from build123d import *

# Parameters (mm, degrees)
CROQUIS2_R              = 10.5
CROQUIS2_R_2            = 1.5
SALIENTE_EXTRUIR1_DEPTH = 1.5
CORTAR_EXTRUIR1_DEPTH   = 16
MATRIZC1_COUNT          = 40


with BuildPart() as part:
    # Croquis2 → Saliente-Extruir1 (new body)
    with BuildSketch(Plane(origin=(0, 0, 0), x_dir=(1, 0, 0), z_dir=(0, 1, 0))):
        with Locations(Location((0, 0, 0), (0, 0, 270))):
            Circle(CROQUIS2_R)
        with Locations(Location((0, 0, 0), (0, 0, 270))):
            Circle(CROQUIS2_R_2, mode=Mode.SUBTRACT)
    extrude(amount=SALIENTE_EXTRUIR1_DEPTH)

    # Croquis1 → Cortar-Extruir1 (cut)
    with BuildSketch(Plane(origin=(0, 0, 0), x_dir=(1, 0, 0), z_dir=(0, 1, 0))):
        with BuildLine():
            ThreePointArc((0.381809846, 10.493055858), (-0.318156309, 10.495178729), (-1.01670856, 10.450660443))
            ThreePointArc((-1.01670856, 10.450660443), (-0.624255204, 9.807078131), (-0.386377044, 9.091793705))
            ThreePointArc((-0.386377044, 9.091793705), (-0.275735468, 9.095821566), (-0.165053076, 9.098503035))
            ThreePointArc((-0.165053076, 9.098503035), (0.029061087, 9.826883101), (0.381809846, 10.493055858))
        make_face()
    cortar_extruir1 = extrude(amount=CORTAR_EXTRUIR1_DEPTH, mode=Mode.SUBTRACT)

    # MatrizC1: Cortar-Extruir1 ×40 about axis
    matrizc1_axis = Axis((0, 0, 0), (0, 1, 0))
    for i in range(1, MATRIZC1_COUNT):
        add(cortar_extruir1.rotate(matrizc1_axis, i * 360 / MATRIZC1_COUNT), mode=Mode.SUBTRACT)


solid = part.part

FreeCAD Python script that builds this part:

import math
import FreeCAD as App
import Part
import Sketcher
Q = App.Units.Quantity

doc = App.newDocument("Part")
params = doc.addObject("Spreadsheet::Sheet", "Params")
for row, (alias, value) in enumerate([
    ("sketch1_diameter", "21 mm"),
    ("sketch1_diameter2", "3 mm"),
    ("pad1_length", "1.5 mm"),
    ("sketch2_radius", "10.5 mm"),
    ("pocket1_length", "16 mm"),
], start=1):
    params.set(f"A{row}", alias)
    params.set(f"B{row}", "=" + value)
    params.setAlias(f"B{row}", alias)

body = doc.addObject("PartDesign::Body", "Body")

# Sketch on XZ plane
sketch1 = body.newObject("Sketcher::SketchObject", "Sketch")
sketch1.AttachmentSupport = (doc.getObject("XZ_Plane"), [""])
sketch1.MapMode = "FlatFace"
sketch1.addGeometry([
    Part.Circle(App.Vector(0, 0, 0), App.Vector(0, 0, 1), 10.5),
    Part.Circle(App.Vector(0, 0, 0), App.Vector(0, 0, 1), 1.5),
], False)
sketch1.addConstraint([
    Sketcher.Constraint("Coincident", 0, 3, -1, 1),
    Sketcher.Constraint("Coincident", 1, 3, -1, 1),
    Sketcher.Constraint("Diameter", 0, Q("21 mm")),
    Sketcher.Constraint("Diameter", 1, Q("3 mm")),
])
sketch1.setExpression("Constraints[2]", "Params.sketch1_diameter")
sketch1.setExpression("Constraints[3]", "Params.sketch1_diameter2")
pad1 = body.newObject("PartDesign::Pad", "Pad")
pad1.Profile = sketch1
pad1.setExpression("Length", "Params.pad1_length")
pad1.Reversed = True

# Sketch on XZ plane
sketch2 = body.newObject("Sketcher::SketchObject", "Sketch001")
sketch2.AttachmentSupport = (doc.getObject("XZ_Plane"), [""])
sketch2.MapMode = "FlatFace"
sketch2.addGeometry([
    Part.ArcOfCircle(Part.Circle(App.Vector(0, 0, 0), App.Vector(0, 0, 1), 10.5), math.radians(-95.556621), math.radians(-87.916103)),
    Part.ArcOfCircle(Part.Circle(App.Vector(-3.64934, -8.403845, 0), App.Vector(0, 0, 1), 3.334696), math.radians(-37.864307), math.radians(-11.905618)),
    Part.ArcOfCircle(Part.Circle(App.Vector(0, -0.00001, 0), App.Vector(0, 0, 1), 9.09999), math.radians(-92.433455), math.radians(-91.03927)),
    Part.ArcOfCircle(Part.Circle(App.Vector(3.13359, -8.609467, 0), App.Vector(0, 0, 1), 3.334696), math.radians(-171.567107), math.radians(-145.608417)),
], False)
sketch2.addConstraint([
    Sketcher.Constraint("Coincident", 0, 1, 1, 1),
    Sketcher.Constraint("Coincident", 1, 2, 2, 1),
    Sketcher.Constraint("Coincident", 2, 2, 3, 1),
    Sketcher.Constraint("Coincident", 3, 2, 0, 2),
    Sketcher.Constraint("Coincident", 0, 3, -1, 1),
    Sketcher.Constraint("Equal", 1, 3),
    Sketcher.Constraint("PointOnObject", 2, 3, -2),
    Sketcher.Constraint("Radius", 0, Q("10.5 mm")),
    Sketcher.Constraint("Radius", 2, Q("9.09999 mm")),
    Sketcher.Constraint("Radius", 1, Q("3.334696 mm")),
    Sketcher.Constraint("DistanceX", 0, 1, 3, 3, Q("4.150298 mm")),
    Sketcher.Constraint("DistanceX", 1, 3, -1, 1, Q("3.64934 mm")),
    Sketcher.Constraint("DistanceX", -1, 1, 3, 3, Q("3.13359 mm")),
    Sketcher.Constraint("DistanceX", -1, 1, 3, 2, Q("0.38181 mm")),
    Sketcher.Constraint("DistanceY", 0, 1, 2, 3, Q("10.45065 mm")),
])
sketch2.setExpression("Constraints[7]", "Params.sketch2_radius")
pocket1 = body.newObject("PartDesign::Pocket", "Pocket")
pocket1.Profile = sketch2
pocket1.setExpression("Length", "Params.pocket1_length")
doc.recompute()

polarpattern = body.newObject("PartDesign::PolarPattern", "PolarPattern")
polarpattern.Originals = [pocket1]
polarpattern.Axis = (doc.getObject("Y_Axis"), [""])
polarpattern.Angle = 360
polarpattern.Occurrences = 40
body.Tip = polarpattern

doc.recompute()
